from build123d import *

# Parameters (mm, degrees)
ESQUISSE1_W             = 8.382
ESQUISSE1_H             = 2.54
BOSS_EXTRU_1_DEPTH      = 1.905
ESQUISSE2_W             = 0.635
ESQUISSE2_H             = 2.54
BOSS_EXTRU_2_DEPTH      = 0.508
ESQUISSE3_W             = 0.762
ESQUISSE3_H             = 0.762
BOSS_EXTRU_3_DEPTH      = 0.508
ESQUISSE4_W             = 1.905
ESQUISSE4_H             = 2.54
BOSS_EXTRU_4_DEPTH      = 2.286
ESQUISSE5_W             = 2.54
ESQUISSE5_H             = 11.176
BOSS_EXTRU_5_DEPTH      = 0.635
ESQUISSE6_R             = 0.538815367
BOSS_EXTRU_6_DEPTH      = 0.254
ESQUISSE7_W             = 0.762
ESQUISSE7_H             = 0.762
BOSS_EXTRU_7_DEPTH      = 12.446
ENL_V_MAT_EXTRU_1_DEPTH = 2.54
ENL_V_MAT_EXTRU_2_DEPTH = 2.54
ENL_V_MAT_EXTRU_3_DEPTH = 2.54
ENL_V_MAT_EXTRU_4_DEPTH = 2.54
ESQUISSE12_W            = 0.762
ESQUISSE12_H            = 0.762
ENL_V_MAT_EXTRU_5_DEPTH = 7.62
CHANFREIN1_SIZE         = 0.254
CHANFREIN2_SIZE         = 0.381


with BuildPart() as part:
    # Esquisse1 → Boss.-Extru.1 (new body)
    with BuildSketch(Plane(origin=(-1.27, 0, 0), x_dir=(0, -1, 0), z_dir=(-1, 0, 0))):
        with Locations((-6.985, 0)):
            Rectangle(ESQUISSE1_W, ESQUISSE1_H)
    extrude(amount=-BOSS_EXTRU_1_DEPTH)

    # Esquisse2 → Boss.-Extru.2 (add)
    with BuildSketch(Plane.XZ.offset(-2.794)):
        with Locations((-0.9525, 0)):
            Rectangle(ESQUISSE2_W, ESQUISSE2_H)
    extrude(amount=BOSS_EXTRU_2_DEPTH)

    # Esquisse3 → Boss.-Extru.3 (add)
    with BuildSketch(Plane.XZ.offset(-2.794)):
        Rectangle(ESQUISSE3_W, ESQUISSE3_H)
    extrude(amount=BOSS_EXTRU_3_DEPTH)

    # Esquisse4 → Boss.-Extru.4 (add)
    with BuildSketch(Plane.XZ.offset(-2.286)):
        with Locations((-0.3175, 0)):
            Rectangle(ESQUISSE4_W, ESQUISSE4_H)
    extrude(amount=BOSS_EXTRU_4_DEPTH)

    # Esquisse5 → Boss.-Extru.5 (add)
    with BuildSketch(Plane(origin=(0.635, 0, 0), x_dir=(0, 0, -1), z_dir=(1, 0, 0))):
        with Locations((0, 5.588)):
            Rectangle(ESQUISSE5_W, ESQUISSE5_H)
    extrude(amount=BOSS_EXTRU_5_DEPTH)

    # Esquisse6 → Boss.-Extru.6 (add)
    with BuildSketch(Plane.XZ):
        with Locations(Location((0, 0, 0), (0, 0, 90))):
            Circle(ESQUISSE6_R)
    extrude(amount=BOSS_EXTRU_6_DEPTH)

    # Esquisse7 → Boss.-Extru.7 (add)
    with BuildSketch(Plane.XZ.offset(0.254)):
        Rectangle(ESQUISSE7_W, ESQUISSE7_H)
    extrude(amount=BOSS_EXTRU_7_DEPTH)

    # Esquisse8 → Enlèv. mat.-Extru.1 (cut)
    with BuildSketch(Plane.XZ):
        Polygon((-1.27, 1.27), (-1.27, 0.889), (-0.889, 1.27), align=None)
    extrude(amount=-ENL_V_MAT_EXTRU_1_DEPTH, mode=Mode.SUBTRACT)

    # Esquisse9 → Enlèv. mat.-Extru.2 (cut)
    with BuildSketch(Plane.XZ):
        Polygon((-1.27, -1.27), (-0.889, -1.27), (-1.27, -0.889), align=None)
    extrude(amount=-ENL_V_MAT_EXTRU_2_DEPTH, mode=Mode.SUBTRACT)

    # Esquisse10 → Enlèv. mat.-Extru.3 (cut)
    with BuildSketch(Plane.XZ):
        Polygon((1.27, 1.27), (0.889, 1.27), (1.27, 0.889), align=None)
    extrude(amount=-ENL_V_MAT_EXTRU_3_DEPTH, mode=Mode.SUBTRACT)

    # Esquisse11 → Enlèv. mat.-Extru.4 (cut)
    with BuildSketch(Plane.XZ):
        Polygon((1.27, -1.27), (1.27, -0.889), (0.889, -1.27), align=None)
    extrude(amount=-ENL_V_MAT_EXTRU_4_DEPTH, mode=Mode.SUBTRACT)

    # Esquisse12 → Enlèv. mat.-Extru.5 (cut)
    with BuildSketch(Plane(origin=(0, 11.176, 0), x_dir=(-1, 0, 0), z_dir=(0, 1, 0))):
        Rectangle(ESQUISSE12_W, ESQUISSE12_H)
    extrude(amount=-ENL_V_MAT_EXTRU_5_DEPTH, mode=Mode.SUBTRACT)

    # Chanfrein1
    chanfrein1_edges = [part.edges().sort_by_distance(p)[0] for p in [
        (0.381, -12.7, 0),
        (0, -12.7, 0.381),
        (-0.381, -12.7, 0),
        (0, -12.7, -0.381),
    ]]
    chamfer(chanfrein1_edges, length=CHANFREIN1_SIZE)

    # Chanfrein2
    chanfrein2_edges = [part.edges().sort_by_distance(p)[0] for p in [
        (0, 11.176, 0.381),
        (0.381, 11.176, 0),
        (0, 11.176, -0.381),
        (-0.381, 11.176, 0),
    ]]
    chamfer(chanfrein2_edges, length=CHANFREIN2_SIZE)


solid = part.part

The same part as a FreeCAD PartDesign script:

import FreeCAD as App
import Part
import Sketcher

V = App.Vector
Q = App.Units.Quantity


def edges_at(feature, points):
    """Names of the edges that pass closest to the given points."""
    edges = feature.Shape.Edges
    near = lambda p: min(range(len(edges)), key=lambda i: edges[i].distToShape(Part.Vertex(*p))[0])
    return sorted({f"Edge{near(p) + 1}" for p in points})

doc = App.newDocument("Part")
body = doc.addObject("PartDesign::Body", "Body")

# Sketch on YZ plane
sketch1 = doc.addObject("Sketcher::SketchObject", "Sketch")
body.addObject(sketch1)
sketch1.AttachmentSupport = (doc.YZ_Plane, [""])
sketch1.MapMode = "FlatFace"
sketch1.AttachmentOffset = App.Placement(V(0, 0, -0.05 * 25.4), App.Rotation())
sketch1.addGeometry([
    Part.LineSegment(V(11.176, 1.27, 0), V(11.176, -1.27, 0)),
    Part.LineSegment(V(11.176, -1.27, 0), V(2.794, -1.27, 0)),
    Part.LineSegment(V(2.794, -1.27, 0), V(2.794, 1.27, 0)),
    Part.LineSegment(V(2.794, 1.27, 0), V(11.176, 1.27, 0)),
], False)
sketch1.addConstraint([
    Sketcher.Constraint("Coincident", 0, 2, 1, 1),
    Sketcher.Constraint("Coincident", 1, 2, 2, 1),
    Sketcher.Constraint("Coincident", 2, 2, 3, 1),
    Sketcher.Constraint("Coincident", 3, 2, 0, 1),
    Sketcher.Constraint("Vertical", 0),
    Sketcher.Constraint("Horizontal", 1),
    Sketcher.Constraint("Vertical", 2),
    Sketcher.Constraint("Horizontal", 3),
    Sketcher.Constraint("DistanceY", 0, 2, 0, 1, Q("0.1 in")),
    Sketcher.Constraint("DistanceX", 1, 2, 1, 1, Q("0.33 in")),
    Sketcher.Constraint("DistanceX", -1, 1, 0, 2, Q("0.44 in")),
    Sketcher.Constraint("DistanceY", 0, 2, -1, 1, Q("0.05 in")),
])
pad1 = doc.addObject("PartDesign::Pad", "Pad")
body.addObject(pad1)
pad1.Profile = sketch1
pad1.Length = Q("0.075 in")

# Sketch on XZ plane
sketch2 = doc.addObject("Sketcher::SketchObject", "Sketch001")
body.addObject(sketch2)
sketch2.AttachmentSupport = (doc.XZ_Plane, [""])
sketch2.MapMode = "FlatFace"
sketch2.AttachmentOffset = App.Placement(V(0, 0, -0.11 * 25.4), App.Rotation())
sketch2.addGeometry([
    Part.LineSegment(V(-1.27, 1.27, 0), V(-1.27, -1.27, 0)),
    Part.LineSegment(V(-1.27, -1.27, 0), V(-0.635, -1.27, 0)),
    Part.LineSegment(V(-0.635, -1.27, 0), V(-0.635, 1.27, 0)),
    Part.LineSegment(V(-0.635, 1.27, 0), V(-1.27, 1.27, 0)),
], False)
sketch2.addConstraint([
    Sketcher.Constraint("Coincident", 0, 2, 1, 1),
    Sketcher.Constraint("Coincident", 1, 2, 2, 1),
    Sketcher.Constraint("Coincident", 2, 2, 3, 1),
    Sketcher.Constraint("Coincident", 3, 2, 0, 1),
    Sketcher.Constraint("Vertical", 0),
    Sketcher.Constraint("Horizontal", 1),
    Sketcher.Constraint("Vertical", 2),
    Sketcher.Constraint("Horizontal", 3),
    Sketcher.Constraint("DistanceY", 0, 2, 0, 1, Q("0.1 in")),
    Sketcher.Constraint("DistanceX", 1, 1, 1, 2, Q("0.025 in")),
    Sketcher.Constraint("DistanceX", 0, 2, -1, 1, Q("0.05 in")),
    Sketcher.Constraint("DistanceY", 0, 2, -1, 1, Q("0.05 in")),
])
pad2 = doc.addObject("PartDesign::Pad", "Pad001")
body.addObject(pad2)
pad2.Profile = sketch2
pad2.Length = Q("0.02 in")

# Sketch on XZ plane
sketch3 = doc.addObject("Sketcher::SketchObject", "Sketch002")
body.addObject(sketch3)
sketch3.AttachmentSupport = (doc.XZ_Plane, [""])
sketch3.MapMode = "FlatFace"
sketch3.AttachmentOffset = App.Placement(V(0, 0, -0.11 * 25.4), App.Rotation())
sketch3.addGeometry([
    Part.LineSegment(V(-0.381, 0.381, 0), V(-0.381, -0.381, 0)),
    Part.LineSegment(V(-0.381, -0.381, 0), V(0.381, -0.381, 0)),
    Part.LineSegment(V(0.381, -0.381, 0), V(0.381, 0.381, 0)),
    Part.LineSegment(V(0.381, 0.381, 0), V(-0.381, 0.381, 0)),
], False)
sketch3.addConstraint([
    Sketcher.Constraint("Coincident", 0, 2, 1, 1),
    Sketcher.Constraint("Coincident", 1, 2, 2, 1),
    Sketcher.Constraint("Coincident", 2, 2, 3, 1),
    Sketcher.Constraint("Coincident", 3, 2, 0, 1),
    Sketcher.Constraint("Vertical", 0),
    Sketcher.Constraint("Horizontal", 1),
    Sketcher.Constraint("Vertical", 2),
    Sketcher.Constraint("Horizontal", 3),
    Sketcher.Constraint("Symmetric", 0, 2, 2, 2, -1, 1),
    Sketcher.Constraint("Equal", 3, 0),
    Sketcher.Constraint("DistanceX", 1, 1, 1, 2, Q("0.03 in")),
])
pad3 = doc.addObject("PartDesign::Pad", "Pad002")
body.addObject(pad3)
pad3.Profile = sketch3
pad3.Length = Q("0.02 in")

# Sketch on XZ plane
sketch4 = doc.addObject("Sketcher::SketchObject", "Sketch003")
body.addObject(sketch4)
sketch4.AttachmentSupport = (doc.XZ_Plane, [""])
sketch4.MapMode = "FlatFace"
sketch4.AttachmentOffset = App.Placement(V(0, 0, -0.09 * 25.4), App.Rotation())
sketch4.addGeometry([
    Part.LineSegment(V(-1.27, 1.27, 0), V(-1.27, -1.27, 0)),
    Part.LineSegment(V(-1.27, -1.27, 0), V(0.635, -1.27, 0)),
    Part.LineSegment(V(0.635, -1.27, 0), V(0.635, 1.27, 0)),
    Part.LineSegment(V(0.635, 1.27, 0), V(-1.27, 1.27, 0)),
], False)
sketch4.addConstraint([
    Sketcher.Constraint("Coincident", 0, 2, 1, 1),
    Sketcher.Constraint("Coincident", 1, 2, 2, 1),
    Sketcher.Constraint("Coincident", 2, 2, 3, 1),
    Sketcher.Constraint("Coincident", 3, 2, 0, 1),
    Sketcher.Constraint("Vertical", 0),
    Sketcher.Constraint("Horizontal", 1),
    Sketcher.Constraint("Vertical", 2),
    Sketcher.Constraint("Horizontal", 3),
    Sketcher.Constraint("DistanceY", 0, 2, 0, 1, Q("0.1 in")),
    Sketcher.Constraint("DistanceX", 1, 1, 1, 2, Q("0.075 in")),
    Sketcher.Constraint("DistanceX", 0, 2, -1, 1, Q("0.05 in")),
    Sketcher.Constraint("DistanceY", 0, 2, -1, 1, Q("0.05 in")),
])
pad4 = doc.addObject("PartDesign::Pad", "Pad003")
body.addObject(pad4)
pad4.Profile = sketch4
pad4.Length = Q("0.09 in")

# Sketch on YZ plane
sketch5 = doc.addObject("Sketcher::SketchObject", "Sketch004")
body.addObject(sketch5)
sketch5.AttachmentSupport = (doc.YZ_Plane, [""])
sketch5.MapMode = "FlatFace"
sketch5.AttachmentOffset = App.Placement(V(0, 0, 0.025 * 25.4), App.Rotation())
sketch5.addGeometry([
    Part.LineSegment(V(11.176, 1.27, 0), V(0, 1.27, 0)),
    Part.LineSegment(V(0, 1.27, 0), V(0, -1.27, 0)),
    Part.LineSegment(V(0, -1.27, 0), V(11.176, -1.27, 0)),
    Part.LineSegment(V(11.176, -1.27, 0), V(11.176, 1.27, 0)),
], False)
sketch5.addConstraint([
    Sketcher.Constraint("Coincident", 0, 2, 1, 1),
    Sketcher.Constraint("Coincident", 1, 2, 2, 1),
    Sketcher.Constraint("Coincident", 2, 2, 3, 1),
    Sketcher.Constraint("Coincident", 3, 2, 0, 1),
    Sketcher.Constraint("Horizontal", 0),
    Sketcher.Constraint("Vertical", 1),
    Sketcher.Constraint("Horizontal", 2),
    Sketcher.Constraint("Vertical", 3),
    Sketcher.Constraint("Symmetric", 0, 2, 1, 2, -1, 1),
    Sketcher.Constraint("DistanceY", 1, 2, 1, 1, Q("0.1 in")),
    Sketcher.Constraint("DistanceX", 0, 2, 0, 1, Q("0.44 in")),
])
pad5 = doc.addObject("PartDesign::Pad", "Pad004")
body.addObject(pad5)
pad5.Profile = sketch5
pad5.Length = Q("0.025 in")

# Sketch on XZ plane
sketch6 = doc.addObject("Sketcher::SketchObject", "Sketch005")
body.addObject(sketch6)
sketch6.AttachmentSupport = (doc.XZ_Plane, [""])
sketch6.MapMode = "FlatFace"
sketch6.addGeometry(Part.Circle(V(0, 0, 0), V(0, 0, 1), 0.538815), False)
sketch6.addConstraint([
    Sketcher.Constraint("Coincident", 0, 3, -1, 1),
    Sketcher.Constraint("Diameter", 0, Q("1.077631 mm")),
])
pad6 = doc.addObject("PartDesign::Pad", "Pad005")
body.addObject(pad6)
pad6.Profile = sketch6
pad6.Length = Q("0.01 in")

# Sketch on XZ plane
sketch7 = doc.addObject("Sketcher::SketchObject", "Sketch006")
body.addObject(sketch7)
sketch7.AttachmentSupport = (doc.XZ_Plane, [""])
sketch7.MapMode = "FlatFace"
sketch7.AttachmentOffset = App.Placement(V(0, 0, 0.01 * 25.4), App.Rotation())
sketch7.addGeometry([
    Part.LineSegment(V(-0.381, 0.381, 0), V(-0.381, -0.381, 0)),
    Part.LineSegment(V(-0.381, -0.381, 0), V(0.381, -0.381, 0)),
    Part.LineSegment(V(0.381, -0.381, 0), V(0.381, 0.381, 0)),
    Part.LineSegment(V(0.381, 0.381, 0), V(-0.381, 0.381, 0)),
], False)
sketch7.addConstraint([
    Sketcher.Constraint("Coincident", 0, 2, 1, 1),
    Sketcher.Constraint("Coincident", 1, 2, 2, 1),
    Sketcher.Constraint("Coincident", 2, 2, 3, 1),
    Sketcher.Constraint("Coincident", 3, 2, 0, 1),
    Sketcher.Constraint("Vertical", 0),
    Sketcher.Constraint("Horizontal", 1),
    Sketcher.Constraint("Vertical", 2),
    Sketcher.Constraint("Horizontal", 3),
    Sketcher.Constraint("Symmetric", 0, 2, 2, 2, -1, 1),
    Sketcher.Constraint("Equal", 3, 0),
    Sketcher.Constraint("DistanceX", 1, 1, 1, 2, Q("0.03 in")),
])
pad7 = doc.addObject("PartDesign::Pad", "Pad006")
body.addObject(pad7)
pad7.Profile = sketch7
pad7.Length = Q("0.49 in")

# Sketch on XZ plane
sketch8 = doc.addObject("Sketcher::SketchObject", "Sketch007")
body.addObject(sketch8)
sketch8.AttachmentSupport = (doc.XZ_Plane, [""])
sketch8.MapMode = "FlatFace"
sketch8.addGeometry([
    Part.LineSegment(V(-1.27, 1.27, 0), V(-1.27, 0.889, 0)),
    Part.LineSegment(V(-1.27, 0.889, 0), V(-0.889, 1.27, 0)),
    Part.LineSegment(V(-0.889, 1.27, 0), V(-1.27, 1.27, 0)),
], False)
sketch8.addConstraint([
    Sketcher.Constraint("Coincident", 0, 2, 1, 1),
    Sketcher.Constraint("Coincident", 1, 2, 2, 1),
    Sketcher.Constraint("Coincident", 2, 2, 0, 1),
    Sketcher.Constraint("Vertical", 0),
    Sketcher.Constraint("Horizontal", 2),
    Sketcher.Constraint("Equal", 2, 0),
    Sketcher.Constraint("DistanceX", 2, 2, 2, 1, Q("0.015 in")),
    Sketcher.Constraint("DistanceX", 0, 2, -1, 1, Q("0.05 in")),
    Sketcher.Constraint("DistanceY", -1, 1, 1, 2, Q("0.05 in")),
])
pocket1 = doc.addObject("PartDesign::Pocket", "Pocket")
body.addObject(pocket1)
pocket1.Profile = sketch8
pocket1.Length = Q("0.1 in")

# Sketch on XZ plane
sketch9 = doc.addObject("Sketcher::SketchObject", "Sketch008")
body.addObject(sketch9)
sketch9.AttachmentSupport = (doc.XZ_Plane, [""])
sketch9.MapMode = "FlatFace"
sketch9.addGeometry([
    Part.LineSegment(V(-1.27, -1.27, 0), V(-0.889, -1.27, 0)),
    Part.LineSegment(V(-0.889, -1.27, 0), V(-1.27, -0.889, 0)),
    Part.LineSegment(V(-1.27, -0.889, 0), V(-1.27, -1.27, 0)),
], False)
sketch9.addConstraint([
    Sketcher.Constraint("Coincident", 0, 2, 1, 1),
    Sketcher.Constraint("Coincident", 1, 2, 2, 1),
    Sketcher.Constraint("Coincident", 2, 2, 0, 1),
    Sketcher.Constraint("Horizontal", 0),
    Sketcher.Constraint("Vertical", 2),
    Sketcher.Constraint("Equal", 0, 2),
    Sketcher.Constraint("DistanceX", 0, 1, 0, 2, Q("0.015 in")),
    Sketcher.Constraint("DistanceY", 0, 2, -1, 1, Q("0.05 in")),
    Sketcher.Constraint("DistanceX", 1, 2, -1, 1, Q("0.05 in")),
])
pocket2 = doc.addObject("PartDesign::Pocket", "Pocket001")
body.addObject(pocket2)
pocket2.Profile = sketch9
pocket2.Length = Q("0.1 in")

# Sketch on XZ plane
sketch10 = doc.addObject("Sketcher::SketchObject", "Sketch009")
body.addObject(sketch10)
sketch10.AttachmentSupport = (doc.XZ_Plane, [""])
sketch10.MapMode = "FlatFace"
sketch10.addGeometry([
    Part.LineSegment(V(1.27, 1.27, 0), V(0.889, 1.27, 0)),
    Part.LineSegment(V(0.889, 1.27, 0), V(1.27, 0.889, 0)),
    Part.LineSegment(V(1.27, 0.889, 0), V(1.27, 1.27, 0)),
], False)
sketch10.addConstraint([
    Sketcher.Constraint("Coincident", 0, 2, 1, 1),
    Sketcher.Constraint("Coincident", 1, 2, 2, 1),
    Sketcher.Constraint("Coincident", 2, 2, 0, 1),
    Sketcher.Constraint("Horizontal", 0),
    Sketcher.Constraint("Vertical", 2),
    Sketcher.Constraint("Equal", 0, 2),
    Sketcher.Constraint("DistanceX", 0, 2, 0, 1, Q("0.015 in")),
    Sketcher.Constraint("DistanceY", -1, 1, 0, 2, Q("0.05 in")),
    Sketcher.Constraint("DistanceX", -1, 1, 1, 2, Q("0.05 in")),
])
pocket3 = doc.addObject("PartDesign::Pocket", "Pocket002")
body.addObject(pocket3)
pocket3.Profile = sketch10
pocket3.Length = Q("0.1 in")

# Sketch on XZ plane
sketch11 = doc.addObject("Sketcher::SketchObject", "Sketch010")
body.addObject(sketch11)
sketch11.AttachmentSupport = (doc.XZ_Plane, [""])
sketch11.MapMode = "FlatFace"
sketch11.addGeometry([
    Part.LineSegment(V(1.27, -1.27, 0), V(1.27, -0.889, 0)),
    Part.LineSegment(V(1.27, -0.889, 0), V(0.889, -1.27, 0)),
    Part.LineSegment(V(0.889, -1.27, 0), V(1.27, -1.27, 0)),
], False)
sketch11.addConstraint([
    Sketcher.Constraint("Coincident", 0, 2, 1, 1),
    Sketcher.Constraint("Coincident", 1, 2, 2, 1),
    Sketcher.Constraint("Coincident", 2, 2, 0, 1),
    Sketcher.Constraint("Vertical", 0),
    Sketcher.Constraint("Horizontal", 2),
    Sketcher.Constraint("Equal", 2, 0),
    Sketcher.Constraint("DistanceX", 2, 1, 2, 2, Q("0.015 in")),
    Sketcher.Constraint("DistanceX", -1, 1, 0, 2, Q("0.05 in")),
    Sketcher.Constraint("DistanceY", 1, 2, -1, 1, Q("0.05 in")),
])
pocket4 = doc.addObject("PartDesign::Pocket", "Pocket003")
body.addObject(pocket4)
pocket4.Profile = sketch11
pocket4.Length = Q("0.1 in")

# Sketch on XZ plane
sketch12 = doc.addObject("Sketcher::SketchObject", "Sketch011")
body.addObject(sketch12)
sketch12.AttachmentSupport = (doc.XZ_Plane, [""])
sketch12.MapMode = "FlatFace"
sketch12.AttachmentOffset = App.Placement(V(0, 0, -0.44 * 25.4), App.Rotation())
sketch12.addGeometry([
    Part.LineSegment(V(0.381, 0.381, 0), V(0.381, -0.381, 0)),
    Part.LineSegment(V(0.381, -0.381, 0), V(-0.381, -0.381, 0)),
    Part.LineSegment(V(-0.381, -0.381, 0), V(-0.381, 0.381, 0)),
    Part.LineSegment(V(-0.381, 0.381, 0), V(0.381, 0.381, 0)),
], False)
sketch12.addConstraint([
    Sketcher.Constraint("Coincident", 0, 2, 1, 1),
    Sketcher.Constraint("Coincident", 1, 2, 2, 1),
    Sketcher.Constraint("Coincident", 2, 2, 3, 1),
    Sketcher.Constraint("Coincident", 3, 2, 0, 1),
    Sketcher.Constraint("Vertical", 0),
    Sketcher.Constraint("Horizontal", 1),
    Sketcher.Constraint("Vertical", 2),
    Sketcher.Constraint("Horizontal", 3),
    Sketcher.Constraint("Symmetric", 0, 2, 2, 2, -1, 1),
    Sketcher.Constraint("Equal", 3, 0),
    Sketcher.Constraint("DistanceX", 1, 2, 1, 1, Q("0.03 in")),
])
pocket5 = doc.addObject("PartDesign::Pocket", "Pocket004")
body.addObject(pocket5)
pocket5.Profile = sketch12
pocket5.Length = Q("0.3 in")
pocket5.Reversed = True
doc.recompute()

chamfer = doc.addObject("PartDesign::Chamfer", "Chamfer")
body.addObject(chamfer)
chamfer.Base = (pocket5, edges_at(pocket5, [
    (0.381, -12.7, 0),
    (0, -12.7, 0.381),
    (-0.381, -12.7, 0),
    (0, -12.7, -0.381),
]))
chamfer.Size = Q("0.01 in")
doc.recompute()

chamfer2 = doc.addObject("PartDesign::Chamfer", "Chamfer001")
body.addObject(chamfer2)
chamfer2.Base = (chamfer, edges_at(chamfer, [
    (0, 11.176, 0.381),
    (0.381, 11.176, 0),
    (0, 11.176, -0.381),
    (-0.381, 11.176, 0),
]))
chamfer2.Size = Q("0.015 in")

doc.recompute()
